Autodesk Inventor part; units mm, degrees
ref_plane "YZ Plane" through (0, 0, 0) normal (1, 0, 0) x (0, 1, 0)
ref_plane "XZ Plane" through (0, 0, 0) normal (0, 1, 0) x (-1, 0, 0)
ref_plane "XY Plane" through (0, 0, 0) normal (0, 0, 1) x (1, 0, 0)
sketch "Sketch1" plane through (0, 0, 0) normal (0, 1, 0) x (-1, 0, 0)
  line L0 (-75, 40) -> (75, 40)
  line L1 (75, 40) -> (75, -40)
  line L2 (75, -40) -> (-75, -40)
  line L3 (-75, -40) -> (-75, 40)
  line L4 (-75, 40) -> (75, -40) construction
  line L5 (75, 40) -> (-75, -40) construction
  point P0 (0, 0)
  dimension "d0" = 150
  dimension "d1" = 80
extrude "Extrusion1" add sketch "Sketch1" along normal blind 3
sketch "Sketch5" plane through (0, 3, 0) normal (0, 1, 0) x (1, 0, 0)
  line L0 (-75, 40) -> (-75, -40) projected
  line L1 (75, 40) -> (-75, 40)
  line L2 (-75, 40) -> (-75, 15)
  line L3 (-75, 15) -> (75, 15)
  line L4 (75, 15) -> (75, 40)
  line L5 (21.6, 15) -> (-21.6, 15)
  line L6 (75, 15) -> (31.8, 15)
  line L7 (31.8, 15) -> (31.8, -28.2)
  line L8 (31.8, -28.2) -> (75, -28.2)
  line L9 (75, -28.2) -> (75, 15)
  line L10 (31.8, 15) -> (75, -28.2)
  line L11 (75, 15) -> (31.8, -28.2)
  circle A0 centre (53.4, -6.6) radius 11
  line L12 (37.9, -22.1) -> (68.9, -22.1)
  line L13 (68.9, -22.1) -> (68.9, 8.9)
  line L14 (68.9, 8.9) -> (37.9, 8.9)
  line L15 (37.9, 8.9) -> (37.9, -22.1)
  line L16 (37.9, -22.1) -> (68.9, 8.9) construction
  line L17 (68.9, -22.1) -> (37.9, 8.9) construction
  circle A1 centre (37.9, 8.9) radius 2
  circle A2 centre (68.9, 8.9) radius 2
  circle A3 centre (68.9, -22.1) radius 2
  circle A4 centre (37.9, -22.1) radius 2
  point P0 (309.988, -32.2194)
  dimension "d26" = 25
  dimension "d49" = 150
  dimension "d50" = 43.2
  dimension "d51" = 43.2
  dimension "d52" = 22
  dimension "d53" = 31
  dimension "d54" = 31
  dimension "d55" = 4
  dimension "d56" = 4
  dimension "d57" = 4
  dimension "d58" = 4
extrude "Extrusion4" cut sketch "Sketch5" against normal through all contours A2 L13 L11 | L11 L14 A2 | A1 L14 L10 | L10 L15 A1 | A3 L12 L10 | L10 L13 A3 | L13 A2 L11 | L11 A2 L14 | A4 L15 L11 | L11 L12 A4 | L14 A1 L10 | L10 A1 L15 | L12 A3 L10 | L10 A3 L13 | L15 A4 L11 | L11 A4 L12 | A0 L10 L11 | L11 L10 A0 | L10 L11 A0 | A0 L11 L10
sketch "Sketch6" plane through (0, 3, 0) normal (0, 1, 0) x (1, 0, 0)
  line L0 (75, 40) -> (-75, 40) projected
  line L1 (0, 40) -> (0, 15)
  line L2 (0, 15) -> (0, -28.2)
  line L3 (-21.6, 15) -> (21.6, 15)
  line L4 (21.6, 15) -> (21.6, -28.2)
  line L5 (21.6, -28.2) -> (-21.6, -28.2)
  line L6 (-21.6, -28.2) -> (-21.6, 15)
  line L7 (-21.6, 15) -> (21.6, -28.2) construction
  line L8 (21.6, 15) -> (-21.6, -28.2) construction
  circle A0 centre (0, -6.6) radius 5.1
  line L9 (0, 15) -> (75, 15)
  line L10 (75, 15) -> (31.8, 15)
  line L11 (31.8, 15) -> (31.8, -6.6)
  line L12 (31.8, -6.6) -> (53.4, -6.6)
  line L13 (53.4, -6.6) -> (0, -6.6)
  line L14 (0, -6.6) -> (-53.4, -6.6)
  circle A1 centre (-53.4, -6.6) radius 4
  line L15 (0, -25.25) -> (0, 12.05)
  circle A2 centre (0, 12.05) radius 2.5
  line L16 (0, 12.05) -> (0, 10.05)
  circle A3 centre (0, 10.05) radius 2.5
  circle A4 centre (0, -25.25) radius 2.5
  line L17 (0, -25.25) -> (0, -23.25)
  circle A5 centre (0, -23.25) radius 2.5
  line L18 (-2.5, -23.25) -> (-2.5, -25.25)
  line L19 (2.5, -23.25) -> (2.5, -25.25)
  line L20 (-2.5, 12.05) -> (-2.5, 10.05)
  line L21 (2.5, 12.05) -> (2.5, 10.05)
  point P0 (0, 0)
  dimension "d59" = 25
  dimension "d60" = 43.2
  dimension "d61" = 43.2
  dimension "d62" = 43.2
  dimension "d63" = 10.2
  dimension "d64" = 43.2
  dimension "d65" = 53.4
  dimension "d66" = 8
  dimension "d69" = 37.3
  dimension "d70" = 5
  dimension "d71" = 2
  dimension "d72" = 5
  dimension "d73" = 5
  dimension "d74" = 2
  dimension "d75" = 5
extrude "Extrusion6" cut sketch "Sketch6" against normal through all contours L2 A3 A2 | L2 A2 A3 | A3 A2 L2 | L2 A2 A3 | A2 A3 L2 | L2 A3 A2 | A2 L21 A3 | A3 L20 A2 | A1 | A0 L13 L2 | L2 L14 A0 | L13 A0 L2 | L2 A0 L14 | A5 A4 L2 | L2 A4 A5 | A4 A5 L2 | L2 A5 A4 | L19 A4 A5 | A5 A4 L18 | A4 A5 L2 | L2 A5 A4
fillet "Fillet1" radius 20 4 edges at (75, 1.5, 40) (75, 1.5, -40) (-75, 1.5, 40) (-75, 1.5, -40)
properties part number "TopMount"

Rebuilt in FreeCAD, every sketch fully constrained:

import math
import FreeCAD as App
import Part
import Sketcher
from FreeCAD import Vector


def edges_at(feature, points):
    """Names of the edges that pass closest to the given points."""
    edges = feature.Shape.Edges
    near = lambda p: min(range(len(edges)), key=lambda i: edges[i].distToShape(Part.Vertex(*p))[0])
    return sorted({f"Edge{near(p) + 1}" for p in points})


def add_polygon(sketch, points):
    """Adds a closed chain of lines whose ends are joined by coincident constraints."""
    first, n = sketch.GeometryCount, len(points)
    for a, b in zip(points, points[1:] + points[:1]):
        sketch.addGeometry(Part.LineSegment(App.Vector(*a, 0), App.Vector(*b, 0)), False)
    for i in range(n):
        sketch.addConstraint(Sketcher.Constraint("Coincident", first + i, 2, first + (i + 1) % n, 1))

doc = App.newDocument("Part")
body = doc.addObject("PartDesign::Body", "Body")

sketch1 = body.newObject("Sketcher::SketchObject", "Sketch")
sketch1.AttachmentSupport = (doc.getObject("XZ_Plane"), [""])
sketch1.MapMode = "FlatFace"
add_polygon(sketch1, [(-75, 40), (75, 40), (75, -40), (-75, -40)])
sketch1.addConstraint(Sketcher.Constraint("Horizontal", 0))
sketch1.addConstraint(Sketcher.Constraint("Vertical", 1))
sketch1.addConstraint(Sketcher.Constraint("Horizontal", 2))
sketch1.addConstraint(Sketcher.Constraint("Vertical", 3))
sketch1.addConstraint(Sketcher.Constraint("Symmetric", 0, 2, 2, 2, -1, 1))
sketch1.addConstraint(Sketcher.Constraint("DistanceX", 0, 1, 0, 2, 150.0))
sketch1.addConstraint(Sketcher.Constraint("DistanceY", 1, 2, 1, 1, 80.0))
pad1 = body.newObject("PartDesign::Pad", "Pad")
pad1.Profile = sketch1
pad1.Length = 3
pad1.Reversed = True

sketch2 = body.newObject("Sketcher::SketchObject", "Sketch001")
sketch2.AttachmentSupport = (doc.getObject("XZ_Plane"), [""])
sketch2.MapMode = "FlatFace"
sketch2.AttachmentOffset = App.Placement(Vector(0, 0, -3), App.Rotation())
sketch2.addGeometry(Part.Circle(Vector(68.9, -8.9, 0), Vector(0, 0, 1), 2), False)
sketch2.addGeometry(Part.Circle(Vector(37.9, -8.9, 0), Vector(0, 0, 1), 2), False)
sketch2.addGeometry(Part.Circle(Vector(68.9, 22.1, 0), Vector(0, 0, 1), 2), False)
sketch2.addGeometry(Part.Circle(Vector(37.9, 22.1, 0), Vector(0, 0, 1), 2), False)
sketch2.addGeometry(Part.Circle(Vector(53.4, 6.6, 0), Vector(0, 0, 1), 11), False)
sketch2.addConstraint(Sketcher.Constraint("Equal", 0, 1))
sketch2.addConstraint(Sketcher.Constraint("Equal", 1, 2))
sketch2.addConstraint(Sketcher.Constraint("Equal", 2, 3))
sketch2.addConstraint(Sketcher.Constraint("Horizontal", 0, 3, 1, 3))
sketch2.addConstraint(Sketcher.Constraint("Horizontal", 2, 3, 3, 3))
sketch2.addConstraint(Sketcher.Constraint("Vertical", 0, 3, 2, 3))
sketch2.addConstraint(Sketcher.Constraint("Vertical", 1, 3, 3, 3))
sketch2.addConstraint(Sketcher.Constraint("Diameter", 0, 4.0))
sketch2.addConstraint(Sketcher.Constraint("Diameter", 4, 22.0))
sketch2.addConstraint(Sketcher.Constraint("DistanceX", 1, 3, 0, 3, 31.0))
sketch2.addConstraint(Sketcher.Constraint("DistanceY", 0, 3, 2, 3, 31.0))
sketch2.addConstraint(Sketcher.Constraint("DistanceX", -1, 1, 0, 3, 68.9))
sketch2.addConstraint(Sketcher.Constraint("DistanceY", 0, 3, -1, 1, 8.9))
sketch2.addConstraint(Sketcher.Constraint("DistanceX", -1, 1, 4, 3, 53.4))
sketch2.addConstraint(Sketcher.Constraint("DistanceY", -1, 1, 4, 3, 6.6))
pocket1 = body.newObject("PartDesign::Pocket", "Pocket")
pocket1.Profile = sketch2
pocket1.Type = "ThroughAll"
pocket1.Reversed = True

sketch3 = body.newObject("Sketcher::SketchObject", "Sketch002")
sketch3.AttachmentSupport = (doc.getObject("XZ_Plane"), [""])
sketch3.MapMode = "FlatFace"
sketch3.AttachmentOffset = App.Placement(Vector(0, 0, -3), App.Rotation())
sketch3.addGeometry(Part.ArcOfCircle(Part.Circle(Vector(0, -12.05, 0), Vector(0, 0, 1), 2.5), math.radians(180), math.radians(360)), False)
sketch3.addGeometry(Part.LineSegment(Vector(-2.5, -12.05, 0), Vector(-2.5, -10.05, 0)), False)
sketch3.addGeometry(Part.ArcOfCircle(Part.Circle(Vector(0, -10.05, 0), Vector(0, 0, 1), 2.5), math.radians(0), math.radians(180)), False)
sketch3.addGeometry(Part.LineSegment(Vector(2.5, -10.05, 0), Vector(2.5, -12.05, 0)), False)
sketch3.addGeometry(Part.Circle(Vector(-53.4, 6.6, 0), Vector(0, 0, 1), 4), False)
sketch3.addGeometry(Part.Circle(Vector(0, 6.6, 0), Vector(0, 0, 1), 5.1), False)
sketch3.addGeometry(Part.ArcOfCircle(Part.Circle(Vector(0, 23.25, 0), Vector(0, 0, 1), 2.5), math.radians(180), math.radians(360)), False)
sketch3.addGeometry(Part.LineSegment(Vector(-2.5, 23.25, 0), Vector(-2.5, 25.25, 0)), False)
sketch3.addGeometry(Part.ArcOfCircle(Part.Circle(Vector(0, 25.25, 0), Vector(0, 0, 1), 2.5), math.radians(0), math.radians(180)), False)
sketch3.addGeometry(Part.LineSegment(Vector(2.5, 25.25, 0), Vector(2.5, 23.25, 0)), False)
sketch3.addConstraint(Sketcher.Constraint("Tangent", 0, 1, 1, 1))
sketch3.addConstraint(Sketcher.Constraint("Tangent", 1, 2, 2, 2))
sketch3.addConstraint(Sketcher.Constraint("Tangent", 2, 1, 3, 1))
sketch3.addConstraint(Sketcher.Constraint("Tangent", 3, 2, 0, 2))
sketch3.addConstraint(Sketcher.Constraint("Tangent", 6, 1, 7, 1))
sketch3.addConstraint(Sketcher.Constraint("Tangent", 7, 2, 8, 2))
sketch3.addConstraint(Sketcher.Constraint("Tangent", 8, 1, 9, 1))
sketch3.addConstraint(Sketcher.Constraint("Tangent", 9, 2, 6, 2))
sketch3.addConstraint(Sketcher.Constraint("Vertical", 1))
sketch3.addConstraint(Sketcher.Constraint("Vertical", 3))
sketch3.addConstraint(Sketcher.Constraint("Vertical", 7))
sketch3.addConstraint(Sketcher.Constraint("Vertical", 9))
sketch3.addConstraint(Sketcher.Constraint("Equal", 2, 6))
sketch3.addConstraint(Sketcher.Constraint("PointOnObject", 0, 3, -2))
sketch3.addConstraint(Sketcher.Constraint("PointOnObject", 5, 3, -2))
sketch3.addConstraint(Sketcher.Constraint("PointOnObject", 6, 3, -2))
sketch3.addConstraint(Sketcher.Constraint("Horizontal", 4, 3, 5, 3))
sketch3.addConstraint(Sketcher.Constraint("Equal", 3, 7))
sketch3.addConstraint(Sketcher.Constraint("Diameter", 4, 8.0))
sketch3.addConstraint(Sketcher.Constraint("Diameter", 5, 10.2))
sketch3.addConstraint(Sketcher.Constraint("Radius", 0, 2.5))
sketch3.addConstraint(Sketcher.Constraint("DistanceY", 1, 1, 1, 2, 2.0))
sketch3.addConstraint(Sketcher.Constraint("DistanceX", 4, 3, -1, 1, 53.4))
sketch3.addConstraint(Sketcher.Constraint("DistanceY", 0, 3, 8, 3, 37.3))
sketch3.addConstraint(Sketcher.Constraint("DistanceY", -1, 1, 4, 3, 6.6))
sketch3.addConstraint(Sketcher.Constraint("DistanceY", 0, 3, -1, 1, 12.05))
pocket2 = body.newObject("PartDesign::Pocket", "Pocket001")
pocket2.Profile = sketch3
pocket2.Type = "ThroughAll"
pocket2.Reversed = True
doc.recompute()

fillet = body.newObject("PartDesign::Fillet", "Fillet")
fillet.Base = (pocket2, edges_at(pocket2, [
    (75, 1.5, 40),
    (75, 1.5, -40),
    (-75, 1.5, 40),
    (-75, 1.5, -40),
]))
fillet.Radius = 20

doc.recompute()
